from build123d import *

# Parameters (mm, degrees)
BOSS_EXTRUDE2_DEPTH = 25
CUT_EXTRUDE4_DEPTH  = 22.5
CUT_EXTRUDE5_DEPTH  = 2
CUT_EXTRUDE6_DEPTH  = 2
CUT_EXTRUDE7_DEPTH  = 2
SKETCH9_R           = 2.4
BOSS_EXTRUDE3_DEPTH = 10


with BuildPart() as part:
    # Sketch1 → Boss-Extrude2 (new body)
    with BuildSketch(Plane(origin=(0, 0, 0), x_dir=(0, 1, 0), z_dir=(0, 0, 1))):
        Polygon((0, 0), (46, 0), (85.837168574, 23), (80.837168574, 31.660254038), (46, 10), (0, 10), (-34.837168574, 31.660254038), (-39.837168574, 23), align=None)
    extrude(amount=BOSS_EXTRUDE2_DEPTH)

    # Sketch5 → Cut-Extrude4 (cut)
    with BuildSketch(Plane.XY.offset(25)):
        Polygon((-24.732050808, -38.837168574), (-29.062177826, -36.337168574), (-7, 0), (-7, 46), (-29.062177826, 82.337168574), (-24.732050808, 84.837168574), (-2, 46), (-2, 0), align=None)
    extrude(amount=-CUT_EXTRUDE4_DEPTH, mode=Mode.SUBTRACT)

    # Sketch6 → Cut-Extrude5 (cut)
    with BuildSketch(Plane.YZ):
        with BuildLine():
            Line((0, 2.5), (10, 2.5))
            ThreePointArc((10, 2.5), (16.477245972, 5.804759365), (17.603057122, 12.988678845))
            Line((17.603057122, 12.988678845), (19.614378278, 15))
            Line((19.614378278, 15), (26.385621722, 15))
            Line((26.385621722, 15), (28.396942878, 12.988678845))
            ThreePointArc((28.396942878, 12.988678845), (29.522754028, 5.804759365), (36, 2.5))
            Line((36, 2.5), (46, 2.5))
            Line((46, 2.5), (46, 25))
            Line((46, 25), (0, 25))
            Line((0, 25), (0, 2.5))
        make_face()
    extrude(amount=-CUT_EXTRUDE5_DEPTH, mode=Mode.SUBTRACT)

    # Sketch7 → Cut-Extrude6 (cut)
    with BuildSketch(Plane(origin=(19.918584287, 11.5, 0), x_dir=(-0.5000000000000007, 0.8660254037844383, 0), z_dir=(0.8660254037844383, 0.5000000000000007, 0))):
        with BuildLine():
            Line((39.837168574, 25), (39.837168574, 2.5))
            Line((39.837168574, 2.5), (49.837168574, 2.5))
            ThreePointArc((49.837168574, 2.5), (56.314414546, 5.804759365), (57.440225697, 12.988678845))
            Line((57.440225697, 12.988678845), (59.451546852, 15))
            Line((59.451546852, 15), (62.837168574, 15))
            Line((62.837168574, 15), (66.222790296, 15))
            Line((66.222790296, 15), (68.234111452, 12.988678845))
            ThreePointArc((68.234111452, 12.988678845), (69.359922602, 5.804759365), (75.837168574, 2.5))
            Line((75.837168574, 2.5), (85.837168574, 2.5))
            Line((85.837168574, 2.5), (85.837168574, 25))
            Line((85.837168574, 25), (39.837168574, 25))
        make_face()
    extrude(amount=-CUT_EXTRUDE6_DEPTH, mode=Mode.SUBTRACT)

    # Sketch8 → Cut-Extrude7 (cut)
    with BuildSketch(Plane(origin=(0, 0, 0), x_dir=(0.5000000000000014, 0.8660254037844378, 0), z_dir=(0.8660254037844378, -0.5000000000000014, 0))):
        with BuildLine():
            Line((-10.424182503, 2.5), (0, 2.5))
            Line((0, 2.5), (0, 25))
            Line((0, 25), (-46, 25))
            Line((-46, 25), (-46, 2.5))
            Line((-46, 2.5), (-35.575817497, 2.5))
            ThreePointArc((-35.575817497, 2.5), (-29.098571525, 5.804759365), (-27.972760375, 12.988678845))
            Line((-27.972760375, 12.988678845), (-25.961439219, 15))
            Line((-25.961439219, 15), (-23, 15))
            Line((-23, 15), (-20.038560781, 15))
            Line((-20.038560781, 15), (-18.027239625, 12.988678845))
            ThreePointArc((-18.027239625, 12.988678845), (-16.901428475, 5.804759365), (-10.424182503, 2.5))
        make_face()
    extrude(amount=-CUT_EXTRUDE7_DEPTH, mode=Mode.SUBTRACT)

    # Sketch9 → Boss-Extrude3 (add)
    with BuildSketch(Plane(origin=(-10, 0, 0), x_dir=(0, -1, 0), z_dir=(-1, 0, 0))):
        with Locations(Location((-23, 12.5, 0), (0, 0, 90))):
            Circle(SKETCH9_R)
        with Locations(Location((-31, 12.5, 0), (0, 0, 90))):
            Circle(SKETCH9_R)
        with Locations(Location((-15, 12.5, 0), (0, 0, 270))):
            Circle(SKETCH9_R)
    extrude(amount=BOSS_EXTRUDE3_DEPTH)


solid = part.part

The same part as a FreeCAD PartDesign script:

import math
import FreeCAD as App
import Part
import Sketcher

V = App.Vector
Q = App.Units.Quantity

doc = App.newDocument("Part")
params = doc.addObject("Spreadsheet::Sheet", "Params")
for row, (alias, value) in enumerate([
    ("sketch1_height", "46 mm"),
    ("sketch1_length", "46 mm"),
    ("sketch1_length2", "10 mm"),
    ("pad1_length", "25 mm"),
    ("sketch2_height", "46 mm"),
    ("sketch2_length", "5 mm"),
    ("pocket1_length", "22.5 mm"),
    ("sketch3_radius", "8 mm"),
    ("sketch3_width", "10 mm"),
    ("sketch3_width2", "46 mm"),
    ("sketch3_height", "22.5 mm"),
    ("pocket2_length", "2 mm"),
    ("sketch4_radius", "8 mm"),
    ("sketch4_width", "10 mm"),
    ("sketch4_width2", "46 mm"),
    ("sketch4_height", "22.5 mm"),
    ("pocket3_length", "2 mm"),
    ("sketch5_radius", "8 mm"),
    ("sketch5_width", "46 mm"),
    ("sketch5_height", "22.5 mm"),
    ("pocket4_length", "2 mm"),
    ("sketch6_diameter", "4.8 mm"),
    ("pad2_length", "10 mm"),
], start=1):
    params.set(f"A{row}", alias)
    params.set(f"B{row}", "=" + value)
    params.setAlias(f"B{row}", alias)

body = doc.addObject("PartDesign::Body", "Body")

sketch1 = body.newObject("Sketcher::SketchObject", "Sketch")
sketch1.AttachmentSupport = (doc.getObject("XY_Plane"), [""])
sketch1.MapMode = "FlatFace"
sketch1.addGeometry([
    Part.LineSegment(V(0, 0, 0), V(0, 46, 0)),
    Part.LineSegment(V(0, 46, 0), V(-23, 86, 0)),
    Part.LineSegment(V(-23, 86, 0), V(-32, 81, 0)),
    Part.LineSegment(V(-32, 81, 0), V(-10, 46, 0)),
    Part.LineSegment(V(-10, 46, 0), V(-10, 0, 0)),
    Part.LineSegment(V(-10, 0, 0), V(-32, -35, 0)),
    Part.LineSegment(V(-32, -35, 0), V(-23, -40, 0)),
    Part.LineSegment(V(-23, -40, 0), V(0, 0, 0)),
], False)
sketch1.addConstraint([
    Sketcher.Constraint("Coincident", 0, 2, 1, 1),
    Sketcher.Constraint("Coincident", 1, 2, 2, 1),
    Sketcher.Constraint("Coincident", 2, 2, 3, 1),
    Sketcher.Constraint("Coincident", 3, 2, 4, 1),
    Sketcher.Constraint("Coincident", 4, 2, 5, 1),
    Sketcher.Constraint("Coincident", 5, 2, 6, 1),
    Sketcher.Constraint("Coincident", 6, 2, 7, 1),
    Sketcher.Constraint("Coincident", 7, 2, 0, 1),
    Sketcher.Constraint("Vertical", 0),
    Sketcher.Constraint("Vertical", 4),
    Sketcher.Constraint("Coincident", 7, 2, -1, 1),
    Sketcher.Constraint("PointOnObject", 4, 2, -1),
    Sketcher.Constraint("Perpendicular", 1, 2),
    Sketcher.Constraint("Perpendicular", 6, 7),
    Sketcher.Constraint("Horizontal", 0, 2, 3, 2),
    Sketcher.Constraint("Vertical", 2, 2, 5, 2),
    Sketcher.Constraint("Vertical", 1, 2, 6, 2),
    Sketcher.Constraint("Equal", 3, 5),
    Sketcher.Constraint("DistanceY", 0, 1, 0, 2, Q("46 mm")),
    Sketcher.Constraint("Angle", 1, Q("120 deg")),
    Sketcher.Constraint("Distance", 1, Q("46 mm")),
    Sketcher.Constraint("Distance", 2, Q("10 mm")),
    Sketcher.Constraint("DistanceX", 3, 2, -1, 1, Q("10 mm")),
])
sketch1.setExpression("Constraints[18]", "Params.sketch1_height")
sketch1.setExpression("Constraints[20]", "Params.sketch1_length")
sketch1.setExpression("Constraints[21]", "Params.sketch1_length2")
pad1 = body.newObject("PartDesign::Pad", "Pad")
pad1.Profile = sketch1
pad1.setExpression("Length", "Params.pad1_length")

sketch2 = body.newObject("Sketcher::SketchObject", "Sketch001")
sketch2.AttachmentSupport = (doc.getObject("XY_Plane"), [""])
sketch2.MapMode = "FlatFace"
sketch2.AttachmentOffset = App.Placement(V(0, 0, 25), App.Rotation())
sketch2.addGeometry([
    Part.LineSegment(V(-29.1, -36.3, 0), V(-24.7, -38.8, 0)),
    Part.LineSegment(V(-24.7, -38.8, 0), V(-2, 0, 0)),
    Part.LineSegment(V(-2, 0, 0), V(-2, 46, 0)),
    Part.LineSegment(V(-2, 46, 0), V(-24.7, 84.8, 0)),
    Part.LineSegment(V(-24.7, 84.8, 0), V(-29.1, 82.3, 0)),
    Part.LineSegment(V(-29.1, 82.3, 0), V(-7, 46, 0)),
    Part.LineSegment(V(-7, 46, 0), V(-7, 0, 0)),
    Part.LineSegment(V(-7, 0, 0), V(-29.1, -36.3, 0)),
], False)
sketch2.addConstraint([
    Sketcher.Constraint("Coincident", 0, 2, 1, 1),
    Sketcher.Constraint("Coincident", 1, 2, 2, 1),
    Sketcher.Constraint("Coincident", 2, 2, 3, 1),
    Sketcher.Constraint("Coincident", 3, 2, 4, 1),
    Sketcher.Constraint("Coincident", 4, 2, 5, 1),
    Sketcher.Constraint("Coincident", 5, 2, 6, 1),
    Sketcher.Constraint("Coincident", 6, 2, 7, 1),
    Sketcher.Constraint("Coincident", 7, 2, 0, 1),
    Sketcher.Constraint("Vertical", 2),
    Sketcher.Constraint("Vertical", 6),
    Sketcher.Constraint("PointOnObject", 1, 2, -1),
    Sketcher.Constraint("PointOnObject", 6, 2, -1),
    Sketcher.Constraint("Horizontal", 2, 2, 5, 2),
    Sketcher.Constraint("Vertical", 0, 2, 3, 2),
    Sketcher.Constraint("Vertical", 4, 2, 7, 2),
    Sketcher.Constraint("Equal", 1, 3),
    Sketcher.Constraint("Equal", 0, 4),
    Sketcher.Constraint("DistanceY", 2, 1, 2, 2, Q("46 mm")),
    Sketcher.Constraint("Angle", 0, Q("-30 deg")),
    Sketcher.Constraint("Distance", 0, Q("5 mm")),
    Sketcher.Constraint("DistanceX", 1, 2, -1, 1, Q("2 mm")),
    Sketcher.Constraint("DistanceX", 5, 2, -1, 1, Q("7 mm")),
    Sketcher.Constraint("DistanceX", 0, 2, -1, 1, Q("24.732051 mm")),
    Sketcher.Constraint("DistanceY", 0, 2, -1, 1, Q("38.837169 mm")),
])
sketch2.setExpression("Constraints[17]", "Params.sketch2_height")
sketch2.setExpression("Constraints[19]", "Params.sketch2_length")
pocket1 = body.newObject("PartDesign::Pocket", "Pocket")
pocket1.Profile = sketch2
pocket1.setExpression("Length", "Params.pocket1_length")

sketch3 = body.newObject("Sketcher::SketchObject", "Sketch002")
sketch3.AttachmentSupport = (doc.getObject("YZ_Plane"), [""])
sketch3.MapMode = "FlatFace"
sketch3.addGeometry([
    Part.LineSegment(V(0, 2.5, 0), V(10, 2.5, 0)),
    Part.ArcOfCircle(Part.Circle(V(10, 10.5, 0), V(0, 0, 1), 8), math.radians(-90), math.radians(18)),
    Part.LineSegment(V(17.6, 13, 0), V(19.6, 15, 0)),
    Part.LineSegment(V(19.6, 15, 0), V(26.4, 15, 0)),
    Part.LineSegment(V(26.4, 15, 0), V(28.4, 13, 0)),
    Part.ArcOfCircle(Part.Circle(V(36, 10.5, 0), V(0, 0, 1), 8), math.radians(162), math.radians(270)),
    Part.LineSegment(V(36, 2.5, 0), V(46, 2.5, 0)),
    Part.LineSegment(V(46, 2.5, 0), V(46, 25, 0)),
    Part.LineSegment(V(46, 25, 0), V(0, 25, 0)),
    Part.LineSegment(V(0, 25, 0), V(0, 2.5, 0)),
], False)
sketch3.addConstraint([
    Sketcher.Constraint("Tangent", 0, 2, 1, 1),
    Sketcher.Constraint("Coincident", 1, 2, 2, 1),
    Sketcher.Constraint("Coincident", 2, 2, 3, 1),
    Sketcher.Constraint("Coincident", 3, 2, 4, 1),
    Sketcher.Constraint("Coincident", 4, 2, 5, 1),
    Sketcher.Constraint("Tangent", 5, 2, 6, 1),
    Sketcher.Constraint("Coincident", 6, 2, 7, 1),
    Sketcher.Constraint("Coincident", 7, 2, 8, 1),
    Sketcher.Constraint("Coincident", 8, 2, 9, 1),
    Sketcher.Constraint("Coincident", 9, 2, 0, 1),
    Sketcher.Constraint("Horizontal", 0),
    Sketcher.Constraint("Horizontal", 3),
    Sketcher.Constraint("Horizontal", 6),
    Sketcher.Constraint("Vertical", 7),
    Sketcher.Constraint("Horizontal", 8),
    Sketcher.Constraint("Vertical", 9),
    Sketcher.Constraint("Equal", 1, 5),
    Sketcher.Constraint("PointOnObject", 8, 2, -2),
    Sketcher.Constraint("Perpendicular", 2, 4),
    Sketcher.Constraint("Horizontal", 1, 3, 5, 3),
    Sketcher.Constraint("Horizontal", 1, 2, 4, 2),
    Sketcher.Constraint("Equal", 0, 6),
    Sketcher.Constraint("Equal", 2, 4),
    Sketcher.Constraint("Radius", 1, Q("8 mm")),
    Sketcher.Constraint("DistanceX", 0, 1, 0, 2, Q("10 mm")),
    Sketcher.Constraint("DistanceX", 8, 2, 8, 1, Q("46 mm")),
    Sketcher.Constraint("DistanceY", 7, 1, 7, 2, Q("22.5 mm")),
    Sketcher.Constraint("DistanceY", -1, 1, 2, 2, Q("15 mm")),
    Sketcher.Constraint("DistanceY", -1, 1, 7, 2, Q("25 mm")),
    Sketcher.Constraint("DistanceX", 3, 1, 3, 2, Q("6.771243 mm")),
])
sketch3.setExpression("Constraints[23]", "Params.sketch3_radius")
sketch3.setExpression("Constraints[24]", "Params.sketch3_width")
sketch3.setExpression("Constraints[25]", "Params.sketch3_width2")
sketch3.setExpression("Constraints[26]", "Params.sketch3_height")
pocket2 = body.newObject("PartDesign::Pocket", "Pocket001")
pocket2.Profile = sketch3
pocket2.setExpression("Length", "Params.pocket2_length")

sketch4 = body.newObject("Sketcher::SketchObject", "Sketch003")
sketch4.Placement = App.Placement(V(19.918584, 11.5, 0), App.Rotation(V(-0.5, 0.866025404, 0), V(0, 0, 1), V(0.866025404, 0.5, 0), "ZXY"))
sketch4.addGeometry([
    Part.LineSegment(V(39.8, 25, 0), V(39.8, 2.5, 0)),
    Part.LineSegment(V(39.8, 2.5, 0), V(49.8, 2.5, 0)),
    Part.ArcOfCircle(Part.Circle(V(49.8, 10.5, 0), V(0, 0, 1), 8), math.radians(-90), math.radians(18)),
    Part.LineSegment(V(57.4, 13, 0), V(59.5, 15, 0)),
    Part.LineSegment(V(59.5, 15, 0), V(66.2, 15, 0)),
    Part.LineSegment(V(66.2, 15, 0), V(68.2, 13, 0)),
    Part.ArcOfCircle(Part.Circle(V(75.8, 10.5, 0), V(0, 0, 1), 8), math.radians(162), math.radians(270)),
    Part.LineSegment(V(75.8, 2.5, 0), V(85.8, 2.5, 0)),
    Part.LineSegment(V(85.8, 2.5, 0), V(85.8, 25, 0)),
    Part.LineSegment(V(85.8, 25, 0), V(39.8, 25, 0)),
], False)
sketch4.addConstraint([
    Sketcher.Constraint("Coincident", 0, 2, 1, 1),
    Sketcher.Constraint("Tangent", 1, 2, 2, 1),
    Sketcher.Constraint("Coincident", 2, 2, 3, 1),
    Sketcher.Constraint("Coincident", 3, 2, 4, 1),
    Sketcher.Constraint("Coincident", 4, 2, 5, 1),
    Sketcher.Constraint("Coincident", 5, 2, 6, 1),
    Sketcher.Constraint("Tangent", 6, 2, 7, 1),
    Sketcher.Constraint("Coincident", 7, 2, 8, 1),
    Sketcher.Constraint("Coincident", 8, 2, 9, 1),
    Sketcher.Constraint("Coincident", 9, 2, 0, 1),
    Sketcher.Constraint("Vertical", 0),
    Sketcher.Constraint("Horizontal", 1),
    Sketcher.Constraint("Horizontal", 4),
    Sketcher.Constraint("Horizontal", 7),
    Sketcher.Constraint("Vertical", 8),
    Sketcher.Constraint("Horizontal", 9),
    Sketcher.Constraint("Equal", 2, 6),
    Sketcher.Constraint("Perpendicular", 3, 5),
    Sketcher.Constraint("Horizontal", 2, 3, 6, 3),
    Sketcher.Constraint("Horizontal", 2, 2, 5, 2),
    Sketcher.Constraint("Equal", 1, 7),
    Sketcher.Constraint("Equal", 3, 5),
    Sketcher.Constraint("Radius", 2, Q("8 mm")),
    Sketcher.Constraint("DistanceX", 1, 1, 1, 2, Q("10 mm")),
    Sketcher.Constraint("DistanceX", 9, 2, 9, 1, Q("46 mm")),
    Sketcher.Constraint("DistanceY", 0, 2, 0, 1, Q("22.5 mm")),
    Sketcher.Constraint("DistanceY", -1, 1, 3, 2, Q("15 mm")),
    Sketcher.Constraint("DistanceY", -1, 1, 8, 2, Q("25 mm")),
    Sketcher.Constraint("DistanceX", 4, 1, 4, 2, Q("6.771243 mm")),
    Sketcher.Constraint("DistanceX", -1, 1, 2, 3, Q("49.837169 mm")),
])
sketch4.setExpression("Constraints[22]", "Params.sketch4_radius")
sketch4.setExpression("Constraints[23]", "Params.sketch4_width")
sketch4.setExpression("Constraints[24]", "Params.sketch4_width2")
sketch4.setExpression("Constraints[25]", "Params.sketch4_height")
pocket3 = body.newObject("PartDesign::Pocket", "Pocket002")
pocket3.Profile = sketch4
pocket3.setExpression("Length", "Params.pocket3_length")

sketch5 = body.newObject("Sketcher::SketchObject", "Sketch004")
sketch5.Placement = App.Placement(V(0, 0, 0), App.Rotation(V(0.5, 0.866025404, 0), V(0, 0, 1), V(0.866025404, -0.5, 0), "ZXY"))
sketch5.addGeometry([
    Part.LineSegment(V(-10.4, 2.5, 0), V(0, 2.5, 0)),
    Part.LineSegment(V(0, 2.5, 0), V(0, 25, 0)),
    Part.LineSegment(V(0, 25, 0), V(-46, 25, 0)),
    Part.LineSegment(V(-46, 25, 0), V(-46, 2.5, 0)),
    Part.LineSegment(V(-46, 2.5, 0), V(-35.6, 2.5, 0)),
    Part.ArcOfCircle(Part.Circle(V(-35.6, 10.5, 0), V(0, 0, 1), 8), math.radians(-90), math.radians(18)),
    Part.LineSegment(V(-28, 13, 0), V(-26, 15, 0)),
    Part.LineSegment(V(-26, 15, 0), V(-20, 15, 0)),
    Part.LineSegment(V(-20, 15, 0), V(-18, 13, 0)),
    Part.ArcOfCircle(Part.Circle(V(-10.4, 10.5, 0), V(0, 0, 1), 8), math.radians(162), math.radians(270)),
], False)
sketch5.addConstraint([
    Sketcher.Constraint("Coincident", 0, 2, 1, 1),
    Sketcher.Constraint("Coincident", 1, 2, 2, 1),
    Sketcher.Constraint("Coincident", 2, 2, 3, 1),
    Sketcher.Constraint("Coincident", 3, 2, 4, 1),
    Sketcher.Constraint("Tangent", 4, 2, 5, 1),
    Sketcher.Constraint("Coincident", 5, 2, 6, 1),
    Sketcher.Constraint("Coincident", 6, 2, 7, 1),
    Sketcher.Constraint("Coincident", 7, 2, 8, 1),
    Sketcher.Constraint("Coincident", 8, 2, 9, 1),
    Sketcher.Constraint("Tangent", 9, 2, 0, 1),
    Sketcher.Constraint("Horizontal", 0),
    Sketcher.Constraint("Vertical", 1),
    Sketcher.Constraint("Horizontal", 2),
    Sketcher.Constraint("Vertical", 3),
    Sketcher.Constraint("Horizontal", 4),
    Sketcher.Constraint("Horizontal", 7),
    Sketcher.Constraint("Equal", 5, 9),
    Sketcher.Constraint("PointOnObject", 0, 2, -2),
    Sketcher.Constraint("Perpendicular", 6, 8),
    Sketcher.Constraint("Horizontal", 5, 3, 9, 3),
    Sketcher.Constraint("Horizontal", 5, 2, 8, 2),
    Sketcher.Constraint("Equal", 0, 4),
    Sketcher.Constraint("Equal", 6, 8),
    Sketcher.Constraint("Radius", 5, Q("8 mm")),
    Sketcher.Constraint("DistanceX", 2, 2, 2, 1, Q("46 mm")),
    Sketcher.Constraint("DistanceY", 1, 1, 1, 2, Q("22.5 mm")),
    Sketcher.Constraint("DistanceY", -1, 1, 1, 2, Q("25 mm")),
    Sketcher.Constraint("DistanceY", -1, 1, 6, 2, Q("15 mm")),
    Sketcher.Constraint("DistanceX", 7, 1, 7, 2, Q("5.922878 mm")),
    Sketcher.Constraint("DistanceX", 5, 2, 7, 2, Q("7.9342 mm")),
])
sketch5.setExpression("Constraints[23]", "Params.sketch5_radius")
sketch5.setExpression("Constraints[24]", "Params.sketch5_width")
sketch5.setExpression("Constraints[25]", "Params.sketch5_height")
pocket4 = body.newObject("PartDesign::Pocket", "Pocket003")
pocket4.Profile = sketch5
pocket4.setExpression("Length", "Params.pocket4_length")

sketch6 = body.newObject("Sketcher::SketchObject", "Sketch005")
sketch6.AttachmentSupport = (doc.getObject("YZ_Plane"), [""])
sketch6.MapMode = "FlatFace"
sketch6.AttachmentOffset = App.Placement(V(0, 0, -10), App.Rotation())
sketch6.addGeometry([
    Part.Circle(V(23, 12.5, 0), V(0, 0, 1), 2.4),
    Part.Circle(V(31, 12.5, 0), V(0, 0, 1), 2.4),
    Part.Circle(V(15, 12.5, 0), V(0, 0, 1), 2.4),
], False)
sketch6.addConstraint([
    Sketcher.Constraint("Equal", 0, 1),
    Sketcher.Constraint("Equal", 1, 2),
    Sketcher.Constraint("Horizontal", 0, 3, 1, 3),
    Sketcher.Constraint("Horizontal", 1, 3, 2, 3),
    Sketcher.Constraint("Diameter", 0, Q("4.8 mm")),
    Sketcher.Constraint("DistanceX", -1, 1, 0, 3, Q("23 mm")),
    Sketcher.Constraint("DistanceX", -1, 1, 1, 3, Q("31 mm")),
    Sketcher.Constraint("DistanceX", -1, 1, 2, 3, Q("15 mm")),
    Sketcher.Constraint("DistanceY", -1, 1, 0, 3, Q("12.5 mm")),
])
sketch6.setExpression("Constraints[4]", "Params.sketch6_diameter")
pad2 = body.newObject("PartDesign::Pad", "Pad001")
pad2.Profile = sketch6
pad2.setExpression("Length", "Params.pad2_length")
pad2.Reversed = True

doc.recompute()
